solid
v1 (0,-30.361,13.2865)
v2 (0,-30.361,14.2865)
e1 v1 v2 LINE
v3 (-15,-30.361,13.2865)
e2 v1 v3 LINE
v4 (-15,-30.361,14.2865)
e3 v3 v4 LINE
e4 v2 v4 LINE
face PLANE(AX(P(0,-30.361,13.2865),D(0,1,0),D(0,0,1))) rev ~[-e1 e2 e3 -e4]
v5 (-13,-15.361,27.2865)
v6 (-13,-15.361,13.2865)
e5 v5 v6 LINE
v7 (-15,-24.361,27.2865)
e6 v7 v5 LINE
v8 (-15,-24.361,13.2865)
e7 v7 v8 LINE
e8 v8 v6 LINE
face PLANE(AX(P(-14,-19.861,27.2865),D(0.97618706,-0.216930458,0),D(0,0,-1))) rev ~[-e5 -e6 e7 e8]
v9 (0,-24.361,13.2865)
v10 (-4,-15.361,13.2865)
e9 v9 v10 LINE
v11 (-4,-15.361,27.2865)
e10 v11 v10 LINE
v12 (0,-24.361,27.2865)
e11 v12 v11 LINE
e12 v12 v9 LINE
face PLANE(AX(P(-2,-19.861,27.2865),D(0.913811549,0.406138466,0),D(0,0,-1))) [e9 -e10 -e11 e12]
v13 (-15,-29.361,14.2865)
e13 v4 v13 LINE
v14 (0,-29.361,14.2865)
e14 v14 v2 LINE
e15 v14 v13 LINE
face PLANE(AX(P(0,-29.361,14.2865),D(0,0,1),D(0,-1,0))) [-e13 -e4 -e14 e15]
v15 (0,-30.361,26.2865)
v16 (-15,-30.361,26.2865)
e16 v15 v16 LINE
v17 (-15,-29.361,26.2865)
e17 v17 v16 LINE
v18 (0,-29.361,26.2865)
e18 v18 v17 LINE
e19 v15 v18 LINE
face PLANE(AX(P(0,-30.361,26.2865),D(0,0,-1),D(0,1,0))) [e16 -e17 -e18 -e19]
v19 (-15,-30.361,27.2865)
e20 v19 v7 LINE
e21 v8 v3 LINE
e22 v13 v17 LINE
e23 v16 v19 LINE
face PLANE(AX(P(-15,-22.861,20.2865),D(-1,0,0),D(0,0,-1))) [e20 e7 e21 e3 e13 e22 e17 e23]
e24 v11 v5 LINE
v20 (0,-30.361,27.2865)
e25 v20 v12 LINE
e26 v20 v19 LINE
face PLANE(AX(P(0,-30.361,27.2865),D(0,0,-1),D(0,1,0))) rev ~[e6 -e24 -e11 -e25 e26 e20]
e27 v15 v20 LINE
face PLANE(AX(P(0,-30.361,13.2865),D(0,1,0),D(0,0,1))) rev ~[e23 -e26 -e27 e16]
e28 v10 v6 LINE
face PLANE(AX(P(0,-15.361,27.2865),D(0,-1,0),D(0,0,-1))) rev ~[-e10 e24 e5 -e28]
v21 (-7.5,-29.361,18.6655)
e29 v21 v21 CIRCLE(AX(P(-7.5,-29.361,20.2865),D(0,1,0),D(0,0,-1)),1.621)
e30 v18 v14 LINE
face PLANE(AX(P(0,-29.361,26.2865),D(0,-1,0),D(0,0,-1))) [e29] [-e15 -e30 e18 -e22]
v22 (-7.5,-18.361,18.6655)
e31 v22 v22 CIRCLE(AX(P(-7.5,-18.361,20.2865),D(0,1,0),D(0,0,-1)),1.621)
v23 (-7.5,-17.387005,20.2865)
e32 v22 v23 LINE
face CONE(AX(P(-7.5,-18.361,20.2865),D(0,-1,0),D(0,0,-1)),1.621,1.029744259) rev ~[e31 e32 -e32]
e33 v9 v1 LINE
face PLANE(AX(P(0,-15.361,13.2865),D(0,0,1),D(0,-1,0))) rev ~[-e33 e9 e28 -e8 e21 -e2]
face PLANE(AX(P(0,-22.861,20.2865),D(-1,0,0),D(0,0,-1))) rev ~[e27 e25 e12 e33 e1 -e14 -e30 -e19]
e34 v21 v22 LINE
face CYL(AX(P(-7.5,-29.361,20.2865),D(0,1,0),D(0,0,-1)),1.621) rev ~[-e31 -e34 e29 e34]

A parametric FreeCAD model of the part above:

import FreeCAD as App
import Part
import Sketcher

V = App.Vector


def edges_at(feature, points):
    """Names of the edges that pass closest to the given points."""
    edges = feature.Shape.Edges
    near = lambda p: min(range(len(edges)), key=lambda i: edges[i].distToShape(Part.Vertex(*p))[0])
    return sorted({f"Edge{near(p) + 1}" for p in points})


def add_polygon(sketch, points):
    """Adds a closed chain of lines whose ends are joined by coincident constraints."""
    first, n = sketch.GeometryCount, len(points)
    for a, b in zip(points, points[1:] + points[:1]):
        sketch.addGeometry(Part.LineSegment(App.Vector(*a, 0), App.Vector(*b, 0)), False)
    for i in range(n):
        sketch.addConstraint(Sketcher.Constraint("Coincident", first + i, 2, first + (i + 1) % n, 1))

doc = App.newDocument("Part")
params = doc.addObject("Spreadsheet::Sheet", "Params")
for row, (alias, value) in enumerate([
    ("sketch1_width", "15 mm"),
    ("sketch1_height", "14 mm"),
    ("pad1_length", "15 mm"),
    ("sketch2_width", "1 mm"),
    ("sketch2_height", "12 mm"),
    ("chamfer_size", "9 mm"),
    ("chamfer_size2", "4 mm"),
    ("chamfer2_size", "9 mm"),
    ("chamfer2_size2", "2 mm"),
    ("hole_diameter", "3.242 mm"),
    ("hole_depth", "11 mm"),
], start=1):
    params.set(f"A{row}", alias)
    params.set(f"B{row}", "=" + value)
    params.setAlias(f"B{row}", alias)

body = doc.addObject("PartDesign::Body", "Body")

sketch1 = doc.addObject("Sketcher::SketchObject", "Sketch")
body.addObject(sketch1)
sketch1.AttachmentSupport = (doc.YZ_Plane, [""])
sketch1.MapMode = "FlatFace"
add_polygon(sketch1, [(-15, 27), (-30, 27), (-30, 13), (-15, 13)])
sketch1.addConstraint([
    Sketcher.Constraint("Horizontal", 0),
    Sketcher.Constraint("Vertical", 1),
    Sketcher.Constraint("Horizontal", 2),
    Sketcher.Constraint("Vertical", 3),
    Sketcher.Constraint("DistanceX", 0, 2, 0, 1, 15.0),
    Sketcher.Constraint("DistanceY", 1, 2, 1, 1, 14.0),
    Sketcher.Constraint("DistanceX", 0, 2, -1, 1, 30.361),
    Sketcher.Constraint("DistanceY", -1, 1, 0, 2, 27.2865),
])
sketch1.setExpression("Constraints[8]", "Params.sketch1_width")
sketch1.setExpression("Constraints[9]", "Params.sketch1_height")
pad1 = doc.addObject("PartDesign::Pad", "Pad")
body.addObject(pad1)
pad1.Profile = sketch1
pad1.setExpression("Length", "Params.pad1_length")
pad1.Reversed = True

sketch2 = doc.addObject("Sketcher::SketchObject", "Sketch001")
body.addObject(sketch2)
sketch2.AttachmentSupport = (doc.YZ_Plane, [""])
sketch2.MapMode = "FlatFace"
add_polygon(sketch2, [(-29.4, 26.3), (-30.4, 26.3), (-30.4, 14.3), (-29.4, 14.3)])
sketch2.addConstraint([
    Sketcher.Constraint("Horizontal", 0),
    Sketcher.Constraint("Vertical", 1),
    Sketcher.Constraint("Horizontal", 2),
    Sketcher.Constraint("Vertical", 3),
    Sketcher.Constraint("DistanceX", 0, 2, 0, 1, 1.0),
    Sketcher.Constraint("DistanceY", 1, 2, 1, 1, 12.0),
    Sketcher.Constraint("DistanceX", 0, 2, -1, 1, 30.361),
    Sketcher.Constraint("DistanceY", -1, 1, 0, 2, 26.2865),
])
sketch2.setExpression("Constraints[8]", "Params.sketch2_width")
sketch2.setExpression("Constraints[9]", "Params.sketch2_height")
pocket1 = doc.addObject("PartDesign::Pocket", "Pocket")
body.addObject(pocket1)
pocket1.Profile = sketch2
pocket1.Type = "ThroughAll"
doc.recompute()

chamfer = doc.addObject("PartDesign::Chamfer", "Chamfer")
body.addObject(chamfer)
chamfer.Base = (pocket1, edges_at(pocket1, [(0, -15.361, 20.287)]))
chamfer.ChamferType = "Two distances"
chamfer.setExpression("Size", "Params.chamfer_size")
chamfer.setExpression("Size2", "Params.chamfer_size2")
chamfer.FlipDirection = True
doc.recompute()

chamfer2 = doc.addObject("PartDesign::Chamfer", "Chamfer001")
body.addObject(chamfer2)
chamfer2.Base = (chamfer, edges_at(chamfer, [(-15, -15.361, 20.287)]))
chamfer2.ChamferType = "Two distances"
chamfer2.setExpression("Size", "Params.chamfer2_size")
chamfer2.setExpression("Size2", "Params.chamfer2_size2")
chamfer2.FlipDirection = True

sketch3 = doc.addObject("Sketcher::SketchObject", "Sketch002")
body.addObject(sketch3)
sketch3.AttachmentSupport = (doc.XZ_Plane, [""])
sketch3.MapMode = "FlatFace"
sketch3.AttachmentOffset = App.Placement(V(0, 0, 29.361), App.Rotation())
sketch3.addGeometry(Part.Circle(V(-7.5, 20.3, 0), V(0, 0, 1), 1.6), False)
sketch3.addConstraint([
    Sketcher.Constraint("Diameter", 0, 3.242),
    Sketcher.Constraint("DistanceX", 0, 3, -1, 1, 7.5),
    Sketcher.Constraint("DistanceY", -1, 1, 0, 3, 20.2865),
])
doc.recompute()
hole = doc.addObject("PartDesign::Hole", "Hole")
body.addObject(hole)
hole.Profile = sketch3
hole.ThreadType = "None"
hole.setExpression("Diameter", "Params.hole_diameter")
hole.DepthType = "Dimension"
hole.setExpression("Depth", "Params.hole_depth")
hole.DrillPoint = "Angled"
hole.DrillPointAngle = 118

doc.recompute()
